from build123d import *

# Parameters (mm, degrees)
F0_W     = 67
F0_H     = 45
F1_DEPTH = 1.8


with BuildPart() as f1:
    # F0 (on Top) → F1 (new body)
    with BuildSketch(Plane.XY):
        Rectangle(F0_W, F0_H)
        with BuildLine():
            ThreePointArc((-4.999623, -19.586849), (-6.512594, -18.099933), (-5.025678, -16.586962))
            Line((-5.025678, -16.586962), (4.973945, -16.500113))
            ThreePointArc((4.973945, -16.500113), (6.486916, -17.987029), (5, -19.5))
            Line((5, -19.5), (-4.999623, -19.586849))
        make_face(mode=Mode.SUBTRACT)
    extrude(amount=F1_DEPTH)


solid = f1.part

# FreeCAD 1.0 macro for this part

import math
import FreeCAD as App
import Part
import Sketcher


def add_polygon(sketch, points):
    """Adds a closed chain of lines whose ends are joined by coincident constraints."""
    first, n = sketch.GeometryCount, len(points)
    for a, b in zip(points, points[1:] + points[:1]):
        sketch.addGeometry(Part.LineSegment(App.Vector(*a, 0), App.Vector(*b, 0)), False)
    for i in range(n):
        sketch.addConstraint(Sketcher.Constraint("Coincident", first + i, 2, first + (i + 1) % n, 1))

doc = App.newDocument("Part")
body = doc.addObject("PartDesign::Body", "Body")

# Sketch on XY plane
sketch1 = body.newObject("Sketcher::SketchObject", "Sketch")
sketch1.AttachmentSupport = (doc.getObject("XY_Plane"), [""])
sketch1.MapMode = "FlatFace"
add_polygon(sketch1, [(-33.5, 22.5), (-33.5, -22.5), (33.5, -22.5), (33.5, 22.5)])  # lines 0-3
sketch1.addGeometry(Part.LineSegment(App.Vector(5, -19.5, 0), App.Vector(-4.999623, -19.586849, 0)), False)  # 4
sketch1.addGeometry(Part.ArcOfCircle(Part.Circle(App.Vector(-5.012651, -18.086906, 0), App.Vector(0, 0, 1), 1.5), math.radians(90.49762), math.radians(270.49762)), False)  # 5
sketch1.addGeometry(Part.LineSegment(App.Vector(-5.025678, -16.586962, 0), App.Vector(4.973945, -16.500113, 0)), False)  # 6
sketch1.addGeometry(Part.ArcOfCircle(Part.Circle(App.Vector(4.986973, -18.000056, 0), App.Vector(0, 0, 1), 1.5), math.radians(-89.50238), math.radians(90.49762)), False)  # 7
sketch1.addConstraint([
    Sketcher.Constraint("Tangent", 4, 2, 5, 2),
    Sketcher.Constraint("Tangent", 5, 1, 6, 1),
    Sketcher.Constraint("Tangent", 6, 2, 7, 2),
    Sketcher.Constraint("Tangent", 7, 1, 4, 1),
    Sketcher.Constraint("Vertical", 0),
    Sketcher.Constraint("Horizontal", 1),
    Sketcher.Constraint("Vertical", 2),
    Sketcher.Constraint("Horizontal", 3),
    Sketcher.Constraint("Equal", 5, 7),
    Sketcher.Constraint("Symmetric", 0, 2, 2, 2, -1, 1),
    Sketcher.Constraint("Radius", 5, 1.5),
    Sketcher.Constraint("DistanceX", 1, 1, 1, 2, 67.0),
    Sketcher.Constraint("DistanceY", 0, 2, 0, 1, 45.0),
    Sketcher.Constraint("Distance", 4, 10.0),
    Sketcher.Constraint("DistanceX", -1, 1, 7, 1, 5.0),
    Sketcher.Constraint("DistanceY", 7, 1, -1, 1, 19.5),
    Sketcher.Constraint("DistanceX", 5, 3, -1, 1, 5.012651),
])
pad1 = body.newObject("PartDesign::Pad", "Pad")
pad1.Profile = sketch1
pad1.Length = 1.8

doc.recompute()
